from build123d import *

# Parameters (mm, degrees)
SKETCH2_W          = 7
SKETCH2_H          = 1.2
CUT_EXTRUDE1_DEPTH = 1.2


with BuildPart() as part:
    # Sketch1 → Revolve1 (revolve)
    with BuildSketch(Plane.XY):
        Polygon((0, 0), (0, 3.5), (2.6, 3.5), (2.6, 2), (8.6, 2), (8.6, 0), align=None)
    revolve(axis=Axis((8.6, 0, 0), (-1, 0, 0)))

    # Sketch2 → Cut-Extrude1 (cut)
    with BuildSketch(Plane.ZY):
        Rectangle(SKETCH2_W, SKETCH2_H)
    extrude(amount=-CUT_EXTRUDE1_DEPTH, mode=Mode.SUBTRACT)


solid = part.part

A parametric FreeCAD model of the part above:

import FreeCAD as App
import Part
import Sketcher
Q = App.Units.Quantity

doc = App.newDocument("Part")
params = doc.addObject("Spreadsheet::Sheet", "Params")
for row, (alias, value) in enumerate([
    ("sketch1_width", "6 mm"),
    ("sketch1_height", "2 mm"),
    ("sketch1_width2", "8.6 mm"),
    ("sketch1_height2", "3.5 mm"),
    ("revolution_angle", "360 deg"),
    ("sketch2_height", "7 mm"),
    ("sketch2_width", "1.2 mm"),
    ("pocket1_length", "1.2 mm"),
], start=1):
    params.set(f"A{row}", alias)
    params.set(f"B{row}", "=" + value)
    params.setAlias(f"B{row}", alias)

body = doc.addObject("PartDesign::Body", "Body")

sketch1 = body.newObject("Sketcher::SketchObject", "Sketch")
sketch1.AttachmentSupport = (doc.getObject("XY_Plane"), [""])
sketch1.MapMode = "FlatFace"
sketch1.addGeometry([
    Part.LineSegment(App.Vector(0, 3.5, 0), App.Vector(0, 0, 0)),
    Part.LineSegment(App.Vector(0, 0, 0), App.Vector(8.6, 0, 0)),
    Part.LineSegment(App.Vector(8.6, 0, 0), App.Vector(8.6, 2, 0)),
    Part.LineSegment(App.Vector(8.6, 2, 0), App.Vector(2.6, 2, 0)),
    Part.LineSegment(App.Vector(2.6, 2, 0), App.Vector(2.6, 3.5, 0)),
    Part.LineSegment(App.Vector(2.6, 3.5, 0), App.Vector(0, 3.5, 0)),
], False)
sketch1.addConstraint([
    Sketcher.Constraint("Coincident", 0, 2, 1, 1),
    Sketcher.Constraint("Coincident", 1, 2, 2, 1),
    Sketcher.Constraint("Coincident", 2, 2, 3, 1),
    Sketcher.Constraint("Coincident", 3, 2, 4, 1),
    Sketcher.Constraint("Coincident", 4, 2, 5, 1),
    Sketcher.Constraint("Coincident", 5, 2, 0, 1),
    Sketcher.Constraint("Vertical", 0),
    Sketcher.Constraint("Horizontal", 1),
    Sketcher.Constraint("Vertical", 2),
    Sketcher.Constraint("Horizontal", 3),
    Sketcher.Constraint("Vertical", 4),
    Sketcher.Constraint("Horizontal", 5),
    Sketcher.Constraint("Coincident", 0, 2, -1, 1),
    Sketcher.Constraint("DistanceX", 3, 2, 3, 1, Q("6 mm")),
    Sketcher.Constraint("DistanceY", 2, 1, 2, 2, Q("2 mm")),
    Sketcher.Constraint("DistanceX", 1, 1, 1, 2, Q("8.6 mm")),
    Sketcher.Constraint("DistanceY", 0, 2, 0, 1, Q("3.5 mm")),
])
sketch1.setExpression("Constraints[13]", "Params.sketch1_width")
sketch1.setExpression("Constraints[14]", "Params.sketch1_height")
sketch1.setExpression("Constraints[15]", "Params.sketch1_width2")
sketch1.setExpression("Constraints[16]", "Params.sketch1_height2")
revolution = body.newObject("PartDesign::Revolution", "Revolution")
revolution.Profile = sketch1
revolution.ReferenceAxis = (sketch1, ["H_Axis"])
revolution.setExpression("Angle", "Params.revolution_angle")

sketch2 = body.newObject("Sketcher::SketchObject", "Sketch001")
sketch2.AttachmentSupport = (doc.getObject("YZ_Plane"), [""])
sketch2.MapMode = "FlatFace"
sketch2.addGeometry([
    Part.LineSegment(App.Vector(0.6, -3.5, 0), App.Vector(-0.6, -3.5, 0)),
    Part.LineSegment(App.Vector(-0.6, -3.5, 0), App.Vector(-0.6, 3.5, 0)),
    Part.LineSegment(App.Vector(-0.6, 3.5, 0), App.Vector(0.6, 3.5, 0)),
    Part.LineSegment(App.Vector(0.6, 3.5, 0), App.Vector(0.6, -3.5, 0)),
], False)
sketch2.addConstraint([
    Sketcher.Constraint("Coincident", 0, 2, 1, 1),
    Sketcher.Constraint("Coincident", 1, 2, 2, 1),
    Sketcher.Constraint("Coincident", 2, 2, 3, 1),
    Sketcher.Constraint("Coincident", 3, 2, 0, 1),
    Sketcher.Constraint("Horizontal", 0),
    Sketcher.Constraint("Vertical", 1),
    Sketcher.Constraint("Horizontal", 2),
    Sketcher.Constraint("Vertical", 3),
    Sketcher.Constraint("Symmetric", 0, 2, 2, 2, -1, 1),
    Sketcher.Constraint("DistanceY", 1, 1, 1, 2, Q("7 mm")),
    Sketcher.Constraint("DistanceX", 0, 2, 0, 1, Q("1.2 mm")),
])
sketch2.setExpression("Constraints[9]", "Params.sketch2_height")
sketch2.setExpression("Constraints[10]", "Params.sketch2_width")
pocket1 = body.newObject("PartDesign::Pocket", "Pocket")
pocket1.Profile = sketch2
pocket1.setExpression("Length", "Params.pocket1_length")
pocket1.Reversed = True

doc.recompute()
